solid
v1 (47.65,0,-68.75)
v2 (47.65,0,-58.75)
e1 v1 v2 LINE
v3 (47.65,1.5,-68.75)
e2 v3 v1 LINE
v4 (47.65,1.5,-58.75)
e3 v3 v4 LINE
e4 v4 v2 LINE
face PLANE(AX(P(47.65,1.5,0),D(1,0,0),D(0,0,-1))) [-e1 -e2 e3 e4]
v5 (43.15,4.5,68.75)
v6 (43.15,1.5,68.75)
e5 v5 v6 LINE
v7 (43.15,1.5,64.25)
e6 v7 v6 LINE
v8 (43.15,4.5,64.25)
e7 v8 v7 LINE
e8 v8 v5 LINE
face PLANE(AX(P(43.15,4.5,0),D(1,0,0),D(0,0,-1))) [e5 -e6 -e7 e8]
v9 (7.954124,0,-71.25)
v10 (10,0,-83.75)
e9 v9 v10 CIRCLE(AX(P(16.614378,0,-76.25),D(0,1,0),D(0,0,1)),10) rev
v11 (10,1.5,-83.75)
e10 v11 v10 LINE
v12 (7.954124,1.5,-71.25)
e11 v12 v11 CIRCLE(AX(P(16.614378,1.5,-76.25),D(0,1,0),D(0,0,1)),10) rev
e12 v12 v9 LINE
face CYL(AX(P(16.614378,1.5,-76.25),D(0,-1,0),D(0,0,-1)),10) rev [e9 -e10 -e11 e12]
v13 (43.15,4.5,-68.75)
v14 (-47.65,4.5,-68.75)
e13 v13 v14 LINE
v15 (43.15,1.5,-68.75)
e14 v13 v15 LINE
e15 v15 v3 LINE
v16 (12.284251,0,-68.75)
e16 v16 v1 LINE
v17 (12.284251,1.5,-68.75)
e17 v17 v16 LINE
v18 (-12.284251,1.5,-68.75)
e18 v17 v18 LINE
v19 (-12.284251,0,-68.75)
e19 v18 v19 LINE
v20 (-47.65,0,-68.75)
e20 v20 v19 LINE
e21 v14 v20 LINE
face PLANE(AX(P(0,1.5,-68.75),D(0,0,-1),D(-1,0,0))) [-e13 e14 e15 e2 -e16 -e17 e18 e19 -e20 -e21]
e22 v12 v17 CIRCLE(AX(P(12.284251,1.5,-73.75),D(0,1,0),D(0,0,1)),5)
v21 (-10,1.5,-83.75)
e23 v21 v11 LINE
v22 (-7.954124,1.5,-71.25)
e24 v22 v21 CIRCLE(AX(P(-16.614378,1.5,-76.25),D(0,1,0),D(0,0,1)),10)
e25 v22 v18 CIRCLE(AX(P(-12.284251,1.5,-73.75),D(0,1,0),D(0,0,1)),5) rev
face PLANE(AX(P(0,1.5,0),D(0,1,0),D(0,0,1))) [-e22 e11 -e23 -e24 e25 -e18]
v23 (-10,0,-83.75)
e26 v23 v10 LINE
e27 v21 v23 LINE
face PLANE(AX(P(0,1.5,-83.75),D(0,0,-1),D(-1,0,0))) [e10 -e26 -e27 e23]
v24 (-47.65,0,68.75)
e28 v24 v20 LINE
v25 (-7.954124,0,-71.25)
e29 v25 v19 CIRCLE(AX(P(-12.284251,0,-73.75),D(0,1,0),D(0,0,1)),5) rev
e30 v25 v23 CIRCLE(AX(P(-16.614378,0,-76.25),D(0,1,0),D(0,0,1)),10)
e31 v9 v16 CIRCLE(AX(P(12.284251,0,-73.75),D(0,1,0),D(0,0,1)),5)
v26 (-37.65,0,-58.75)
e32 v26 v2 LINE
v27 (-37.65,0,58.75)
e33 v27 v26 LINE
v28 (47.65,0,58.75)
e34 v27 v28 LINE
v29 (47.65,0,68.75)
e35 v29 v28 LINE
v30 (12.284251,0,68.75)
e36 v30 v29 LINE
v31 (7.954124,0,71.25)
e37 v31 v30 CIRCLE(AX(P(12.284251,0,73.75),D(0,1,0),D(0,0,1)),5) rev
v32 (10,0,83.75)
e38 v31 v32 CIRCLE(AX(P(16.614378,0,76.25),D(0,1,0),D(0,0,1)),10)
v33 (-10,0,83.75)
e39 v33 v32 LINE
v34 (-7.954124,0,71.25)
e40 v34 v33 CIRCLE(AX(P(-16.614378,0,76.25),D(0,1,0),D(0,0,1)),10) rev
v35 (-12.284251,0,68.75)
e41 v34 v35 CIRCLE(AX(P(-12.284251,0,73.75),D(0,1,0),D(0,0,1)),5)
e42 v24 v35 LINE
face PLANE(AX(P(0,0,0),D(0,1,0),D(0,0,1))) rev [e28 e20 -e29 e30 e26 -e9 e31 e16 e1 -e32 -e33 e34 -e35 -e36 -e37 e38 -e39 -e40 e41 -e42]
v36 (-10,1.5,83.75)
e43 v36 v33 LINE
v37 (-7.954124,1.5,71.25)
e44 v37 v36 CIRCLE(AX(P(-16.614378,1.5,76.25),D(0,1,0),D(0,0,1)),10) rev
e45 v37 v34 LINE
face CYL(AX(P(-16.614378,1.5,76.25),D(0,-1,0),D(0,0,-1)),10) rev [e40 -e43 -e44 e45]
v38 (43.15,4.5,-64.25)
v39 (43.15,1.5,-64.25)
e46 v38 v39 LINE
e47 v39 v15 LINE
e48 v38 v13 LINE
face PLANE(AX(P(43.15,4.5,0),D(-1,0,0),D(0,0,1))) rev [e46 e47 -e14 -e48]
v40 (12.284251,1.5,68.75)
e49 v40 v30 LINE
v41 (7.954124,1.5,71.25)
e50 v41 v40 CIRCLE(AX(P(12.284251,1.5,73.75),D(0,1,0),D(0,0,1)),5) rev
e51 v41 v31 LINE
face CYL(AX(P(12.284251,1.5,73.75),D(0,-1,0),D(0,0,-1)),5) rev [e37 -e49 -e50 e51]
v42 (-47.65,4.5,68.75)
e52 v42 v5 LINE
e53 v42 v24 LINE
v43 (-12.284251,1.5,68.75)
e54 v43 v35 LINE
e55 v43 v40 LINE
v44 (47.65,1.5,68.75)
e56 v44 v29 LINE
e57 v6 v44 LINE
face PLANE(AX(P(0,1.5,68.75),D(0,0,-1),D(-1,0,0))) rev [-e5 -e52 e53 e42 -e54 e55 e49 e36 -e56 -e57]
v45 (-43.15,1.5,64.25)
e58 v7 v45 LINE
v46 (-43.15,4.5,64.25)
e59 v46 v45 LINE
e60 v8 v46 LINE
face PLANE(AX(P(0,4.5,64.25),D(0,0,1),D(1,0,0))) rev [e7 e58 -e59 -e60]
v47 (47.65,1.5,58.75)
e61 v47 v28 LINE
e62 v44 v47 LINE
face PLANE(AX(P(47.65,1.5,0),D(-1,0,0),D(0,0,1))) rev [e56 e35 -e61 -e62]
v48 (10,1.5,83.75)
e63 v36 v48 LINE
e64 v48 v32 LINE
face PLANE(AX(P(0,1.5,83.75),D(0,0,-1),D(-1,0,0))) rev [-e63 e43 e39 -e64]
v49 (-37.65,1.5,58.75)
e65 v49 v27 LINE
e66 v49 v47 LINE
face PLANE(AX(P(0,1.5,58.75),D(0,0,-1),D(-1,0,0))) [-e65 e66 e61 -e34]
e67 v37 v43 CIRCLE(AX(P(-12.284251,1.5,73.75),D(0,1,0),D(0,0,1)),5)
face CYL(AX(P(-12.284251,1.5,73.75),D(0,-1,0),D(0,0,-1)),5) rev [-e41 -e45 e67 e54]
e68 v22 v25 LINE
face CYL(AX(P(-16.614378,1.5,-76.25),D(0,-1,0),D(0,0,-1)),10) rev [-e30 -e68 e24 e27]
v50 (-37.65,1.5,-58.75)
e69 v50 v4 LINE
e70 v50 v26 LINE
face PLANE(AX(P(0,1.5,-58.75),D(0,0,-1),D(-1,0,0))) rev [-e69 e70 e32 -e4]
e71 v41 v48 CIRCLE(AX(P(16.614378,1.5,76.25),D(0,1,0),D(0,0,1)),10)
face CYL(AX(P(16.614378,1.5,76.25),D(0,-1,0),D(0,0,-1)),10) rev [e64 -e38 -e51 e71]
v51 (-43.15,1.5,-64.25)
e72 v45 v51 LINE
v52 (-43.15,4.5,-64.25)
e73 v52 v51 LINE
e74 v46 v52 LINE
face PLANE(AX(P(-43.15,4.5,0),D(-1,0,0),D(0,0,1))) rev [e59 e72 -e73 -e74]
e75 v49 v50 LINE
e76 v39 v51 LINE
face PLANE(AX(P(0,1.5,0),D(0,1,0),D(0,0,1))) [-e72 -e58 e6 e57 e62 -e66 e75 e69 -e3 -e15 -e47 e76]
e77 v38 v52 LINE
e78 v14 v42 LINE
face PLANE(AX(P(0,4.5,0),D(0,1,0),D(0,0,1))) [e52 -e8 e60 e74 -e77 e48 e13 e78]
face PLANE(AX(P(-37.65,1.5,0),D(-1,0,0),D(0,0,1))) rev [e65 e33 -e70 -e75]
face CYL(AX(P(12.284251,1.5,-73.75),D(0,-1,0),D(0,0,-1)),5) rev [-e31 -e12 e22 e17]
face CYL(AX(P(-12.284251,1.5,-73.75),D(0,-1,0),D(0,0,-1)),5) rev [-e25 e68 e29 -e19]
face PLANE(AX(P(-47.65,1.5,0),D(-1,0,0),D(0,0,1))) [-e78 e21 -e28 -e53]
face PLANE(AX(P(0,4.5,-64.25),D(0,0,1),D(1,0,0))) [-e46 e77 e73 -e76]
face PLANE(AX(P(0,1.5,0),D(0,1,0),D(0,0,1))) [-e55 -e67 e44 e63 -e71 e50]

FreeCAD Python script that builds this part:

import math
import FreeCAD as App
import Part
import Sketcher
from FreeCAD import Vector
Q = App.Units.Quantity


def add_polygon(sketch, points):
    """Adds a closed chain of lines whose ends are joined by coincident constraints."""
    first, n = sketch.GeometryCount, len(points)
    for a, b in zip(points, points[1:] + points[:1]):
        sketch.addGeometry(Part.LineSegment(App.Vector(*a, 0), App.Vector(*b, 0)), False)
    for i in range(n):
        sketch.addConstraint(Sketcher.Constraint("Coincident", first + i, 2, first + (i + 1) % n, 1))

doc = App.newDocument("Part")
params = doc.addObject("Spreadsheet::Sheet", "Params")
for row, (alias, value) in enumerate([
    ("sketch1_radius", "5 mm"),
    ("sketch1_radius2", "10 mm"),
    ("sketch1_width", "20 mm"),
    ("sketch1_height", "10 mm"),
    ("sketch1_width2", "85.3 mm"),
    ("pad1_length", "1.5 mm"),
    ("sketch2_width", "86.3 mm"),
    ("sketch2_width2", "90.8 mm"),
    ("sketch2_height", "4.5 mm"),
    ("sketch2_height2", "137.5 mm"),
    ("pad2_length", "3 mm"),
], start=1):
    params.set(f"A{row}", alias)
    params.set(f"B{row}", "=" + value)
    params.setAlias(f"B{row}", alias)

body = doc.addObject("PartDesign::Body", "Body")

sketch1 = doc.addObject("Sketcher::SketchObject", "Sketch")
body.addObject(sketch1)
sketch1.AttachmentSupport = (doc.XZ_Plane, [""])
sketch1.MapMode = "FlatFace"
sketch1.addGeometry([
    Part.ArcOfCircle(Part.Circle(Vector(-12, 74, 0), Vector(0, 0, 1), 5), math.radians(-90), math.radians(-30)),
    Part.ArcOfCircle(Part.Circle(Vector(-17, 76, 0), Vector(0, 0, 1), 10), math.radians(-30), math.radians(49)),
    Part.LineSegment(Vector(-10, 84, 0), Vector(10, 84, 0)),
    Part.ArcOfCircle(Part.Circle(Vector(17, 76, 0), Vector(0, 0, 1), 10), math.radians(131), math.radians(210)),
    Part.ArcOfCircle(Part.Circle(Vector(12, 74, 0), Vector(0, 0, 1), 5), math.radians(-150), math.radians(-90)),
    Part.LineSegment(Vector(12, 69, 0), Vector(48, 69, 0)),
    Part.LineSegment(Vector(48, 69, 0), Vector(48, 59, 0)),
    Part.LineSegment(Vector(48, 59, 0), Vector(-38, 59, 0)),
    Part.LineSegment(Vector(-38, 59, 0), Vector(-38, -59, 0)),
    Part.LineSegment(Vector(-38, -59, 0), Vector(48, -59, 0)),
    Part.LineSegment(Vector(48, -59, 0), Vector(48, -69, 0)),
    Part.LineSegment(Vector(48, -69, 0), Vector(12, -69, 0)),
    Part.ArcOfCircle(Part.Circle(Vector(12, -74, 0), Vector(0, 0, 1), 5), math.radians(90), math.radians(150)),
    Part.ArcOfCircle(Part.Circle(Vector(17, -76, 0), Vector(0, 0, 1), 10), math.radians(150), math.radians(229)),
    Part.LineSegment(Vector(10, -84, 0), Vector(-10, -84, 0)),
    Part.ArcOfCircle(Part.Circle(Vector(-17, -76, 0), Vector(0, 0, 1), 10), math.radians(-49), math.radians(30)),
    Part.ArcOfCircle(Part.Circle(Vector(-12, -74, 0), Vector(0, 0, 1), 5), math.radians(30), math.radians(90)),
    Part.LineSegment(Vector(-12, -69, 0), Vector(-48, -69, 0)),
    Part.LineSegment(Vector(-48, -69, 0), Vector(-48, 69, 0)),
    Part.LineSegment(Vector(-48, 69, 0), Vector(-12, 69, 0)),
], False)
sketch1.addConstraint([
    Sketcher.Constraint("Tangent", 0, 2, 1, 1),
    Sketcher.Constraint("Coincident", 1, 2, 2, 1),
    Sketcher.Constraint("Coincident", 2, 2, 3, 1),
    Sketcher.Constraint("Tangent", 3, 2, 4, 1),
    Sketcher.Constraint("Tangent", 4, 2, 5, 1),
    Sketcher.Constraint("Coincident", 5, 2, 6, 1),
    Sketcher.Constraint("Coincident", 6, 2, 7, 1),
    Sketcher.Constraint("Coincident", 7, 2, 8, 1),
    Sketcher.Constraint("Coincident", 8, 2, 9, 1),
    Sketcher.Constraint("Coincident", 9, 2, 10, 1),
    Sketcher.Constraint("Coincident", 10, 2, 11, 1),
    Sketcher.Constraint("Tangent", 11, 2, 12, 1),
    Sketcher.Constraint("Tangent", 12, 2, 13, 1),
    Sketcher.Constraint("Coincident", 13, 2, 14, 1),
    Sketcher.Constraint("Coincident", 14, 2, 15, 1),
    Sketcher.Constraint("Tangent", 15, 2, 16, 1),
    Sketcher.Constraint("Tangent", 16, 2, 17, 1),
    Sketcher.Constraint("Coincident", 17, 2, 18, 1),
    Sketcher.Constraint("Coincident", 18, 2, 19, 1),
    Sketcher.Constraint("Tangent", 19, 2, 0, 1),
    Sketcher.Constraint("Horizontal", 2),
    Sketcher.Constraint("Horizontal", 5),
    Sketcher.Constraint("Vertical", 6),
    Sketcher.Constraint("Horizontal", 7),
    Sketcher.Constraint("Vertical", 8),
    Sketcher.Constraint("Horizontal", 9),
    Sketcher.Constraint("Vertical", 10),
    Sketcher.Constraint("Horizontal", 11),
    Sketcher.Constraint("Horizontal", 14),
    Sketcher.Constraint("Horizontal", 17),
    Sketcher.Constraint("Vertical", 18),
    Sketcher.Constraint("Horizontal", 19),
    Sketcher.Constraint("Equal", 1, 3),
    Sketcher.Constraint("Equal", 0, 4),
    Sketcher.Constraint("Equal", 4, 12),
    Sketcher.Constraint("Equal", 3, 13),
    Sketcher.Constraint("Equal", 13, 15),
    Sketcher.Constraint("Equal", 12, 16),
    Sketcher.Constraint("Symmetric", 0, 3, 12, 3, -1, 1),
    Sketcher.Constraint("Symmetric", 3, 3, 15, 3, -1, 1),
    Sketcher.Constraint("Symmetric", 1, 2, 13, 2, -1, 1),
    Sketcher.Constraint("Symmetric", 5, 2, 17, 2, -1, 1),
    Sketcher.Constraint("Symmetric", 1, 3, 3, 3, -2),
    Sketcher.Constraint("Symmetric", 10, 2, 17, 2, -2),
    Sketcher.Constraint("Equal", 6, 10),
    Sketcher.Constraint("Radius", 0, Q("5 mm")),
    Sketcher.Constraint("Radius", 1, Q("10 mm")),
    Sketcher.Constraint("DistanceX", 2, 1, 2, 2, Q("20 mm")),
    Sketcher.Constraint("DistanceY", 6, 2, 6, 1, Q("10 mm")),
    Sketcher.Constraint("DistanceX", 7, 2, 7, 1, Q("85.3 mm")),
    Sketcher.Constraint("DistanceY", 8, 2, 8, 1, Q("117.5 mm")),
    Sketcher.Constraint("DistanceY", 12, 3, 3, 3, Q("150 mm")),
    Sketcher.Constraint("DistanceY", 0, 3, 1, 2, Q("10 mm")),
    Sketcher.Constraint("DistanceX", 17, 2, 8, 2, Q("10 mm")),
])
sketch1.setExpression("Constraints[45]", "Params.sketch1_radius")
sketch1.setExpression("Constraints[46]", "Params.sketch1_radius2")
sketch1.setExpression("Constraints[47]", "Params.sketch1_width")
sketch1.setExpression("Constraints[48]", "Params.sketch1_height")
sketch1.setExpression("Constraints[49]", "Params.sketch1_width2")
pad1 = doc.addObject("PartDesign::Pad", "Pad")
body.addObject(pad1)
pad1.Profile = sketch1
pad1.setExpression("Length", "Params.pad1_length")
pad1.Reversed = True

sketch2 = doc.addObject("Sketcher::SketchObject", "Sketch001")
body.addObject(sketch2)
sketch2.AttachmentSupport = (doc.XZ_Plane, [""])
sketch2.MapMode = "FlatFace"
sketch2.AttachmentOffset = App.Placement(Vector(0, 0, -1.5), App.Rotation())
add_polygon(sketch2, [(-43.1, -64.2), (43.1, -64.2), (43.1, -68.8), (-47.6, -68.8), (-47.6, 68.8), (43.1, 68.8), (43.1, 64.2), (-43.1, 64.2)])
sketch2.addConstraint([
    Sketcher.Constraint("Horizontal", 0),
    Sketcher.Constraint("Vertical", 1),
    Sketcher.Constraint("Horizontal", 2),
    Sketcher.Constraint("Vertical", 3),
    Sketcher.Constraint("Horizontal", 4),
    Sketcher.Constraint("Vertical", 5),
    Sketcher.Constraint("Horizontal", 6),
    Sketcher.Constraint("Vertical", 7),
    Sketcher.Constraint("Symmetric", 0, 2, 6, 2, -1, 1),
    Sketcher.Constraint("Symmetric", 1, 2, 4, 2, -1),
    Sketcher.Constraint("DistanceX", 0, 1, 0, 2, Q("86.3 mm")),
    Sketcher.Constraint("DistanceX", 2, 2, 2, 1, Q("90.8 mm")),
    Sketcher.Constraint("DistanceY", 1, 2, 1, 1, Q("4.5 mm")),
    Sketcher.Constraint("DistanceY", 3, 1, 3, 2, Q("137.5 mm")),
])
sketch2.setExpression("Constraints[18]", "Params.sketch2_width")
sketch2.setExpression("Constraints[19]", "Params.sketch2_width2")
sketch2.setExpression("Constraints[20]", "Params.sketch2_height")
sketch2.setExpression("Constraints[21]", "Params.sketch2_height2")
pad2 = doc.addObject("PartDesign::Pad", "Pad001")
body.addObject(pad2)
pad2.Profile = sketch2
pad2.setExpression("Length", "Params.pad2_length")
pad2.Reversed = True

doc.recompute()
